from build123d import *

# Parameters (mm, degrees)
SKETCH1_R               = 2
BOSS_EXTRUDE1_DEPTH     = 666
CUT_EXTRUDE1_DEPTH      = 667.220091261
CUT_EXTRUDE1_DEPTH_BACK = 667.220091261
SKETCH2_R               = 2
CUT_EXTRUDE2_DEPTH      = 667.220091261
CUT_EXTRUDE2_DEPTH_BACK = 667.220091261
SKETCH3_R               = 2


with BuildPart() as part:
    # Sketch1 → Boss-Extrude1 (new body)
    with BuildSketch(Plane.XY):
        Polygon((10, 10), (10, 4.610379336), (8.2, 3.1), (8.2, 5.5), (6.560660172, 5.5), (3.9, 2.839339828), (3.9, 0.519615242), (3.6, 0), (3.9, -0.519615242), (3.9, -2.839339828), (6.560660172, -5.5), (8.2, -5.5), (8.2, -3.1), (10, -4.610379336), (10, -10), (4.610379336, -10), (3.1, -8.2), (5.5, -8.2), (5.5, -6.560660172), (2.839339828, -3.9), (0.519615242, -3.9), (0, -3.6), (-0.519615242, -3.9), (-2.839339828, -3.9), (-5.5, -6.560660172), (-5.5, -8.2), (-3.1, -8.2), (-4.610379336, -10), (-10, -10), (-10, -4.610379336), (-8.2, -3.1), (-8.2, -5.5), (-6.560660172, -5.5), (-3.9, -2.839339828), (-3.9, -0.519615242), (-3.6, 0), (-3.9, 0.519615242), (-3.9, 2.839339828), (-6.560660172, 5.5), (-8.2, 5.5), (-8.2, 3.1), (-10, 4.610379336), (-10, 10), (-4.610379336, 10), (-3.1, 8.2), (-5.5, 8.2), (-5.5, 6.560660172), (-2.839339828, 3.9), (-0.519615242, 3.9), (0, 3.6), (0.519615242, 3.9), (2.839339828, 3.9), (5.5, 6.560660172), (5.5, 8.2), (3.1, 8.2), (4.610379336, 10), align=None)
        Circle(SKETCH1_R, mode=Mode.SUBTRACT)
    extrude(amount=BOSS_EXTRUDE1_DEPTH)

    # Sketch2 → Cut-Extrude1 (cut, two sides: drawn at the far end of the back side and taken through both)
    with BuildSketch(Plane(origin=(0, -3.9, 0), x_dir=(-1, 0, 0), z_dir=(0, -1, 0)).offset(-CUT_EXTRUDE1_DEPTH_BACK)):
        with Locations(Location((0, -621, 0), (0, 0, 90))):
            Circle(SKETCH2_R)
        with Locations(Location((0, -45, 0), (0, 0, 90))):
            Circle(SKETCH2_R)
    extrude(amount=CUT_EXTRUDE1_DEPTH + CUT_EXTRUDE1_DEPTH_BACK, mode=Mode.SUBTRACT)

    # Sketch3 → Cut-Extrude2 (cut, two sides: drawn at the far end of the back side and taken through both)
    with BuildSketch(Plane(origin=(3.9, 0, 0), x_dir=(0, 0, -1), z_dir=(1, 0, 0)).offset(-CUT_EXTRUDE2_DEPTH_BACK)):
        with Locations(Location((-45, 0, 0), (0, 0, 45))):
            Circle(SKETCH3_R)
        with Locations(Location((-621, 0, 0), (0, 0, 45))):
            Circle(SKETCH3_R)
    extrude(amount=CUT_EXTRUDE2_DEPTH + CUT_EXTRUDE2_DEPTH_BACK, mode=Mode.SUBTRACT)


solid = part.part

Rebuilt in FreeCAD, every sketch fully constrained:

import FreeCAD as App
import Part
import Sketcher
from FreeCAD import Vector
Q = App.Units.Quantity

doc = App.newDocument("Part")
params = doc.addObject("Spreadsheet::Sheet", "Params")
for row, (alias, value) in enumerate([
    ("sketch1_diameter", "4 mm"),
    ("sketch1_width", "2.4 mm"),
    ("sketch1_length", "0.6 mm"),
    ("pad1_length", "666 mm"),
    ("sketch2_diameter", "4 mm"),
    ("sketch3_diameter", "4 mm"),
], start=1):
    params.set(f"A{row}", alias)
    params.set(f"B{row}", "=" + value)
    params.setAlias(f"B{row}", alias)

body = doc.addObject("PartDesign::Body", "Body")

sketch1 = body.newObject("Sketcher::SketchObject", "Sketch")
sketch1.AttachmentSupport = (doc.getObject("XY_Plane"), [""])
sketch1.MapMode = "FlatFace"
sketch1.addGeometry([
    Part.LineSegment(Vector(10, 4.610379, 0), Vector(10, 10, 0)),
    Part.LineSegment(Vector(10, 10, 0), Vector(4.610379, 10, 0)),
    Part.LineSegment(Vector(4.610379, 10, 0), Vector(3.1, 8.2, 0)),
    Part.LineSegment(Vector(3.1, 8.2, 0), Vector(5.5, 8.2, 0)),
    Part.LineSegment(Vector(5.5, 8.2, 0), Vector(5.5, 6.56066, 0)),
    Part.LineSegment(Vector(5.5, 6.56066, 0), Vector(2.83934, 3.9, 0)),
    Part.LineSegment(Vector(2.83934, 3.9, 0), Vector(0.519615, 3.9, 0)),
    Part.LineSegment(Vector(0.519615, 3.9, 0), Vector(0, 3.6, 0)),
    Part.LineSegment(Vector(0, 3.6, 0), Vector(-0.519615, 3.9, 0)),
    Part.LineSegment(Vector(-0.519615, 3.9, 0), Vector(-2.83934, 3.9, 0)),
    Part.LineSegment(Vector(-2.83934, 3.9, 0), Vector(-5.5, 6.56066, 0)),
    Part.LineSegment(Vector(-5.5, 6.56066, 0), Vector(-5.5, 8.2, 0)),
    Part.LineSegment(Vector(-5.5, 8.2, 0), Vector(-3.1, 8.2, 0)),
    Part.LineSegment(Vector(-3.1, 8.2, 0), Vector(-4.610379, 10, 0)),
    Part.LineSegment(Vector(-4.610379, 10, 0), Vector(-10, 10, 0)),
    Part.LineSegment(Vector(-10, 10, 0), Vector(-10, 4.610379, 0)),
    Part.LineSegment(Vector(-10, 4.610379, 0), Vector(-8.2, 3.1, 0)),
    Part.LineSegment(Vector(-8.2, 3.1, 0), Vector(-8.2, 5.5, 0)),
    Part.LineSegment(Vector(-8.2, 5.5, 0), Vector(-6.56066, 5.5, 0)),
    Part.LineSegment(Vector(-6.56066, 5.5, 0), Vector(-3.9, 2.83934, 0)),
    Part.LineSegment(Vector(-3.9, 2.83934, 0), Vector(-3.9, 0.519615, 0)),
    Part.LineSegment(Vector(-3.9, 0.519615, 0), Vector(-3.6, 0, 0)),
    Part.LineSegment(Vector(-3.6, 0, 0), Vector(-3.9, -0.519615, 0)),
    Part.LineSegment(Vector(-3.9, -0.519615, 0), Vector(-3.9, -2.83934, 0)),
    Part.LineSegment(Vector(-3.9, -2.83934, 0), Vector(-6.56066, -5.5, 0)),
    Part.LineSegment(Vector(-6.56066, -5.5, 0), Vector(-8.2, -5.5, 0)),
    Part.LineSegment(Vector(-8.2, -5.5, 0), Vector(-8.2, -3.1, 0)),
    Part.LineSegment(Vector(-8.2, -3.1, 0), Vector(-10, -4.610379, 0)),
    Part.LineSegment(Vector(-10, -4.610379, 0), Vector(-10, -10, 0)),
    Part.LineSegment(Vector(-10, -10, 0), Vector(-4.610379, -10, 0)),
    Part.LineSegment(Vector(-4.610379, -10, 0), Vector(-3.1, -8.2, 0)),
    Part.LineSegment(Vector(-3.1, -8.2, 0), Vector(-5.5, -8.2, 0)),
    Part.LineSegment(Vector(-5.5, -8.2, 0), Vector(-5.5, -6.56066, 0)),
    Part.LineSegment(Vector(-5.5, -6.56066, 0), Vector(-2.83934, -3.9, 0)),
    Part.LineSegment(Vector(-2.83934, -3.9, 0), Vector(-0.519615, -3.9, 0)),
    Part.LineSegment(Vector(-0.519615, -3.9, 0), Vector(0, -3.6, 0)),
    Part.LineSegment(Vector(0, -3.6, 0), Vector(0.519615, -3.9, 0)),
    Part.LineSegment(Vector(0.519615, -3.9, 0), Vector(2.83934, -3.9, 0)),
    Part.LineSegment(Vector(2.83934, -3.9, 0), Vector(5.5, -6.56066, 0)),
    Part.LineSegment(Vector(5.5, -6.56066, 0), Vector(5.5, -8.2, 0)),
    Part.LineSegment(Vector(5.5, -8.2, 0), Vector(3.1, -8.2, 0)),
    Part.LineSegment(Vector(3.1, -8.2, 0), Vector(4.610379, -10, 0)),
    Part.LineSegment(Vector(4.610379, -10, 0), Vector(10, -10, 0)),
    Part.LineSegment(Vector(10, -10, 0), Vector(10, -4.610379, 0)),
    Part.LineSegment(Vector(10, -4.610379, 0), Vector(8.2, -3.1, 0)),
    Part.LineSegment(Vector(8.2, -3.1, 0), Vector(8.2, -5.5, 0)),
    Part.LineSegment(Vector(8.2, -5.5, 0), Vector(6.56066, -5.5, 0)),
    Part.LineSegment(Vector(6.56066, -5.5, 0), Vector(3.9, -2.83934, 0)),
    Part.LineSegment(Vector(3.9, -2.83934, 0), Vector(3.9, -0.519615, 0)),
    Part.LineSegment(Vector(3.9, -0.519615, 0), Vector(3.6, 0, 0)),
    Part.LineSegment(Vector(3.6, 0, 0), Vector(3.9, 0.519615, 0)),
    Part.LineSegment(Vector(3.9, 0.519615, 0), Vector(3.9, 2.83934, 0)),
    Part.LineSegment(Vector(3.9, 2.83934, 0), Vector(6.56066, 5.5, 0)),
    Part.LineSegment(Vector(6.56066, 5.5, 0), Vector(8.2, 5.5, 0)),
    Part.LineSegment(Vector(8.2, 5.5, 0), Vector(8.2, 3.1, 0)),
    Part.LineSegment(Vector(8.2, 3.1, 0), Vector(10, 4.610379, 0)),
    Part.Circle(Vector(0, 0, 0), Vector(0, 0, 1), 2),
], False)
sketch1.addConstraint([
    Sketcher.Constraint("Coincident", 0, 2, 1, 1),
    Sketcher.Constraint("Coincident", 1, 2, 2, 1),
    Sketcher.Constraint("Coincident", 2, 2, 3, 1),
    Sketcher.Constraint("Coincident", 3, 2, 4, 1),
    Sketcher.Constraint("Coincident", 4, 2, 5, 1),
    Sketcher.Constraint("Coincident", 5, 2, 6, 1),
    Sketcher.Constraint("Coincident", 6, 2, 7, 1),
    Sketcher.Constraint("Coincident", 7, 2, 8, 1),
    Sketcher.Constraint("Coincident", 8, 2, 9, 1),
    Sketcher.Constraint("Coincident", 9, 2, 10, 1),
    Sketcher.Constraint("Coincident", 10, 2, 11, 1),
    Sketcher.Constraint("Coincident", 11, 2, 12, 1),
    Sketcher.Constraint("Coincident", 12, 2, 13, 1),
    Sketcher.Constraint("Coincident", 13, 2, 14, 1),
    Sketcher.Constraint("Coincident", 14, 2, 15, 1),
    Sketcher.Constraint("Coincident", 15, 2, 16, 1),
    Sketcher.Constraint("Coincident", 16, 2, 17, 1),
    Sketcher.Constraint("Coincident", 17, 2, 18, 1),
    Sketcher.Constraint("Coincident", 18, 2, 19, 1),
    Sketcher.Constraint("Coincident", 19, 2, 20, 1),
    Sketcher.Constraint("Coincident", 20, 2, 21, 1),
    Sketcher.Constraint("Coincident", 21, 2, 22, 1),
    Sketcher.Constraint("Coincident", 22, 2, 23, 1),
    Sketcher.Constraint("Coincident", 23, 2, 24, 1),
    Sketcher.Constraint("Coincident", 24, 2, 25, 1),
    Sketcher.Constraint("Coincident", 25, 2, 26, 1),
    Sketcher.Constraint("Coincident", 26, 2, 27, 1),
    Sketcher.Constraint("Coincident", 27, 2, 28, 1),
    Sketcher.Constraint("Coincident", 28, 2, 29, 1),
    Sketcher.Constraint("Coincident", 29, 2, 30, 1),
    Sketcher.Constraint("Coincident", 30, 2, 31, 1),
    Sketcher.Constraint("Coincident", 31, 2, 32, 1),
    Sketcher.Constraint("Coincident", 32, 2, 33, 1),
    Sketcher.Constraint("Coincident", 33, 2, 34, 1),
    Sketcher.Constraint("Coincident", 34, 2, 35, 1),
    Sketcher.Constraint("Coincident", 35, 2, 36, 1),
    Sketcher.Constraint("Coincident", 36, 2, 37, 1),
    Sketcher.Constraint("Coincident", 37, 2, 38, 1),
    Sketcher.Constraint("Coincident", 38, 2, 39, 1),
    Sketcher.Constraint("Coincident", 39, 2, 40, 1),
    Sketcher.Constraint("Coincident", 40, 2, 41, 1),
    Sketcher.Constraint("Coincident", 41, 2, 42, 1),
    Sketcher.Constraint("Coincident", 42, 2, 43, 1),
    Sketcher.Constraint("Coincident", 43, 2, 44, 1),
    Sketcher.Constraint("Coincident", 44, 2, 45, 1),
    Sketcher.Constraint("Coincident", 45, 2, 46, 1),
    Sketcher.Constraint("Coincident", 46, 2, 47, 1),
    Sketcher.Constraint("Coincident", 47, 2, 48, 1),
    Sketcher.Constraint("Coincident", 48, 2, 49, 1),
    Sketcher.Constraint("Coincident", 49, 2, 50, 1),
    Sketcher.Constraint("Coincident", 50, 2, 51, 1),
    Sketcher.Constraint("Coincident", 51, 2, 52, 1),
    Sketcher.Constraint("Coincident", 52, 2, 53, 1),
    Sketcher.Constraint("Coincident", 53, 2, 54, 1),
    Sketcher.Constraint("Coincident", 54, 2, 55, 1),
    Sketcher.Constraint("Coincident", 55, 2, 0, 1),
    Sketcher.Constraint("Vertical", 0),
    Sketcher.Constraint("Horizontal", 1),
    Sketcher.Constraint("Horizontal", 3),
    Sketcher.Constraint("Vertical", 4),
    Sketcher.Constraint("Horizontal", 6),
    Sketcher.Constraint("Horizontal", 9),
    Sketcher.Constraint("Vertical", 11),
    Sketcher.Constraint("Horizontal", 12),
    Sketcher.Constraint("Horizontal", 14),
    Sketcher.Constraint("Vertical", 15),
    Sketcher.Constraint("Vertical", 17),
    Sketcher.Constraint("Horizontal", 18),
    Sketcher.Constraint("Vertical", 20),
    Sketcher.Constraint("Vertical", 23),
    Sketcher.Constraint("Horizontal", 25),
    Sketcher.Constraint("Vertical", 26),
    Sketcher.Constraint("Vertical", 28),
    Sketcher.Constraint("Horizontal", 29),
    Sketcher.Constraint("Horizontal", 31),
    Sketcher.Constraint("Vertical", 32),
    Sketcher.Constraint("Horizontal", 34),
    Sketcher.Constraint("Horizontal", 37),
    Sketcher.Constraint("Vertical", 39),
    Sketcher.Constraint("Horizontal", 40),
    Sketcher.Constraint("Horizontal", 42),
    Sketcher.Constraint("Vertical", 43),
    Sketcher.Constraint("Vertical", 45),
    Sketcher.Constraint("Horizontal", 46),
    Sketcher.Constraint("Vertical", 48),
    Sketcher.Constraint("Vertical", 51),
    Sketcher.Constraint("Horizontal", 53),
    Sketcher.Constraint("Vertical", 54),
    Sketcher.Constraint("Coincident", 56, 3, -1, 1),
    Sketcher.Constraint("Symmetric", 0, 2, 28, 2, -1, 1),
    Sketcher.Constraint("Symmetric", 2, 2, 30, 2, -1, 1),
    Sketcher.Constraint("Symmetric", 4, 2, 32, 2, -1, 1),
    Sketcher.Constraint("Symmetric", 5, 2, 33, 2, -1, 1),
    Sketcher.Constraint("Symmetric", 7, 2, 35, 2, -1, 1),
    Sketcher.Constraint("Symmetric", 8, 2, 36, 2, -1, 1),
    Sketcher.Constraint("Symmetric", 10, 2, 38, 2, -1, 1),
    Sketcher.Constraint("Symmetric", 12, 2, 40, 2, -1, 1),
    Sketcher.Constraint("Symmetric", 13, 2, 41, 2, -1, 1),
    Sketcher.Constraint("Symmetric", 15, 2, 43, 2, -1, 1),
    Sketcher.Constraint("Symmetric", 16, 2, 44, 2, -1, 1),
    Sketcher.Constraint("Symmetric", 18, 2, 46, 2, -1, 1),
    Sketcher.Constraint("Symmetric", 19, 2, 47, 2, -1, 1),
    Sketcher.Constraint("Symmetric", 21, 2, 49, 2, -1, 1),
    Sketcher.Constraint("Symmetric", 22, 2, 50, 2, -1, 1),
    Sketcher.Constraint("Symmetric", 24, 2, 52, 2, -1, 1),
    Sketcher.Constraint("Symmetric", 26, 2, 54, 2, -1, 1),
    Sketcher.Constraint("Symmetric", 6, 2, 8, 2, -2),
    Sketcher.Constraint("Symmetric", 4, 2, 10, 2, -2),
    Sketcher.Constraint("Symmetric", 2, 2, 12, 2, -2),
    Sketcher.Constraint("Symmetric", 1, 2, 13, 2, -2),
    Sketcher.Constraint("Symmetric", 27, 2, 43, 2, -2),
    Sketcher.Constraint("Symmetric", 26, 2, 44, 2, -2),
    Sketcher.Constraint("Symmetric", 24, 2, 46, 2, -2),
    Sketcher.Constraint("Symmetric", 23, 2, 47, 2, -2),
    Sketcher.Constraint("PointOnObject", 7, 2, -2),
    Sketcher.Constraint("PointOnObject", 21, 2, -1),
    Sketcher.Constraint("Perpendicular", 5, 10),
    Sketcher.Constraint("Perpendicular", 2, 16),
    Sketcher.Constraint("Parallel", 10, 19),
    Sketcher.Constraint("Perpendicular", 7, 21),
    Sketcher.Constraint("Perpendicular", 8, 22),
    Sketcher.Constraint("Perpendicular", 19, 24),
    Sketcher.Constraint("Perpendicular", 16, 30),
    Sketcher.Constraint("Perpendicular", 21, 35),
    Sketcher.Constraint("Perpendicular", 33, 38),
    Sketcher.Constraint("Perpendicular", 35, 49),
    Sketcher.Constraint("Perpendicular", 47, 52),
    Sketcher.Constraint("Perpendicular", 41, 55),
    Sketcher.Constraint("Equal", 42, 0),
    Sketcher.Constraint("Equal", 53, 4),
    Sketcher.Constraint("Equal", 40, 17),
    Sketcher.Constraint("Equal", 37, 20),
    Sketcher.Constraint("Equal", 13, 16),
    Sketcher.Constraint("Equal", 10, 19),
    Sketcher.Constraint("Equal", 8, 21),
    Sketcher.Constraint("Diameter", 56, 4.0),
    Sketcher.Constraint("Angle", 2, Q("-130 deg")),
    Sketcher.Constraint("Angle", 7, Q("-150 deg")),
    Sketcher.Constraint("DistanceX", 3, 1, 3, 2, 2.4),
    Sketcher.Constraint("DistanceX", -1, 1, 0, 2, 10.0),
    Sketcher.Constraint("Distance", 7, 0.6),
    Sketcher.Constraint("DistanceX", -1, 1, 2, 2, 3.1),
    Sketcher.Constraint("DistanceY", -1, 1, 2, 2, 8.2),
    Sketcher.Constraint("DistanceY", -1, 1, 5, 2, 3.9),
    Sketcher.Constraint("DistanceX", 18, 1, 18, 2, 1.63934),
])
sketch1.setExpression("Constraints[135]", "Params.sketch1_diameter")
sketch1.setExpression("Constraints[138]", "Params.sketch1_width")
sketch1.setExpression("Constraints[140]", "Params.sketch1_length")
pad1 = body.newObject("PartDesign::Pad", "Pad")
pad1.Profile = sketch1
pad1.setExpression("Length", "Params.pad1_length")

sketch2 = body.newObject("Sketcher::SketchObject", "Sketch001")
sketch2.AttachmentSupport = (doc.getObject("XZ_Plane"), [""])
sketch2.MapMode = "FlatFace"
sketch2.AttachmentOffset = App.Placement(Vector(0, 0, 3.9), App.Rotation())
sketch2.addGeometry([
    Part.Circle(Vector(0, 621, 0), Vector(0, 0, 1), 2),
    Part.Circle(Vector(0, 45, 0), Vector(0, 0, 1), 2),
], False)
sketch2.addConstraint([
    Sketcher.Constraint("Equal", 0, 1),
    Sketcher.Constraint("PointOnObject", 0, 3, -2),
    Sketcher.Constraint("PointOnObject", 1, 3, -2),
    Sketcher.Constraint("Diameter", 0, 4.0),
    Sketcher.Constraint("DistanceY", -1, 1, 0, 3, 621.0),
    Sketcher.Constraint("DistanceY", -1, 1, 1, 3, 45.0),
])
sketch2.setExpression("Constraints[3]", "Params.sketch2_diameter")
pocket1 = body.newObject("PartDesign::Pocket", "Pocket")
pocket1.Profile = sketch2
pocket1.Type = "ThroughAll"
pocket1.Midplane = True

sketch3 = body.newObject("Sketcher::SketchObject", "Sketch002")
sketch3.AttachmentSupport = (doc.getObject("YZ_Plane"), [""])
sketch3.MapMode = "FlatFace"
sketch3.AttachmentOffset = App.Placement(Vector(0, 0, 3.9), App.Rotation())
sketch3.addGeometry([
    Part.Circle(Vector(0, 45, 0), Vector(0, 0, 1), 2),
    Part.Circle(Vector(0, 621, 0), Vector(0, 0, 1), 2),
], False)
sketch3.addConstraint([
    Sketcher.Constraint("Equal", 0, 1),
    Sketcher.Constraint("PointOnObject", 0, 3, -2),
    Sketcher.Constraint("PointOnObject", 1, 3, -2),
    Sketcher.Constraint("Diameter", 0, 4.0),
    Sketcher.Constraint("DistanceY", -1, 1, 0, 3, 45.0),
    Sketcher.Constraint("DistanceY", -1, 1, 1, 3, 621.0),
])
sketch3.setExpression("Constraints[3]", "Params.sketch3_diameter")
pocket2 = body.newObject("PartDesign::Pocket", "Pocket001")
pocket2.Profile = sketch3
pocket2.Type = "ThroughAll"
pocket2.Midplane = True

doc.recompute()
